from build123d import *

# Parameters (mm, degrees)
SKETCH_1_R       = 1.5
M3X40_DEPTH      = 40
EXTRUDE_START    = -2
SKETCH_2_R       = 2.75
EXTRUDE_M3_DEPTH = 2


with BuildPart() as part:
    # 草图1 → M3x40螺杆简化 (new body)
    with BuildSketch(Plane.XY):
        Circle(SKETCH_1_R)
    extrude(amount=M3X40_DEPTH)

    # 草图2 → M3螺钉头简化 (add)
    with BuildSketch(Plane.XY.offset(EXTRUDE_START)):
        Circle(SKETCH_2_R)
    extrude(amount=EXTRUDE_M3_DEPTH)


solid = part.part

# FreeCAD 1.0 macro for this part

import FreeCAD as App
import Part
import Sketcher
from FreeCAD import Vector
Q = App.Units.Quantity

doc = App.newDocument("Part")
body = doc.addObject("PartDesign::Body", "Body")

# Sketch on XY plane
sketch1 = body.newObject("Sketcher::SketchObject", "Sketch")
sketch1.AttachmentSupport = (doc.getObject("XY_Plane"), [""])
sketch1.MapMode = "FlatFace"
sketch1.addGeometry(Part.Circle(Vector(0, 0, 0), Vector(0, 0, 1), 1.5), False)
sketch1.addConstraint([
    Sketcher.Constraint("Coincident", 0, 3, -1, 1),
    Sketcher.Constraint("Diameter", 0, Q("3 mm")),
])
pad1 = body.newObject("PartDesign::Pad", "Pad")
pad1.Profile = sketch1
pad1.Length = 40

# Sketch on XY plane
sketch2 = body.newObject("Sketcher::SketchObject", "Sketch001")
sketch2.AttachmentSupport = (doc.getObject("XY_Plane"), [""])
sketch2.MapMode = "FlatFace"
sketch2.AttachmentOffset = App.Placement(Vector(0, 0, -2), App.Rotation())
sketch2.addGeometry(Part.Circle(Vector(0, 0, 0), Vector(0, 0, 1), 2.75), False)
sketch2.addConstraint([
    Sketcher.Constraint("Coincident", 0, 3, -1, 1),
    Sketcher.Constraint("Diameter", 0, Q("5.5 mm")),
])
pad2 = body.newObject("PartDesign::Pad", "Pad001")
pad2.Profile = sketch2
pad2.Length = 2

doc.recompute()
